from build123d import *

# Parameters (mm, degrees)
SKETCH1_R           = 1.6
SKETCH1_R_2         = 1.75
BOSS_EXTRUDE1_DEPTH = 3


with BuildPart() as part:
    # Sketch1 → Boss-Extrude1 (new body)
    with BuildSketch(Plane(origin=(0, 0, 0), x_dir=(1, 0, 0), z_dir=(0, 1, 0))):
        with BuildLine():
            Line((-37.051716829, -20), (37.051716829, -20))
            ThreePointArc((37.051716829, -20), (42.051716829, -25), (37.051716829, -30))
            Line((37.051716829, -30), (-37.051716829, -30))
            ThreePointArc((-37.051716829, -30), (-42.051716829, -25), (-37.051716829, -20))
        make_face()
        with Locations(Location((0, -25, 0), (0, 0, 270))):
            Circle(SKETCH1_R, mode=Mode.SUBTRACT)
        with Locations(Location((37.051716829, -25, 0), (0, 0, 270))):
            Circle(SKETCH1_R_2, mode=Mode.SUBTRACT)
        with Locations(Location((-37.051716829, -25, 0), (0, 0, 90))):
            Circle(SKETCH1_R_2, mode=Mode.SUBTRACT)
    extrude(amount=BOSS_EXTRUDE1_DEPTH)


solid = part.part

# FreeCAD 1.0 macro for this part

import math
import FreeCAD as App
import Part
import Sketcher

V = App.Vector

doc = App.newDocument("Part")
body = doc.addObject("PartDesign::Body", "Body")

# Sketch on XZ plane
sketch1 = doc.addObject("Sketcher::SketchObject", "Sketch")
body.addObject(sketch1)
sketch1.AttachmentSupport = (doc.XZ_Plane, [""])
sketch1.MapMode = "FlatFace"
sketch1.addGeometry([
    Part.LineSegment(V(37.1, 20, 0), V(-37.1, 20, 0)),  # 0
    Part.ArcOfCircle(Part.Circle(V(-37.1, 25, 0), V(0, 0, 1), 5), math.radians(90), math.radians(270)),  # 1
    Part.LineSegment(V(-37.1, 30, 0), V(37.1, 30, 0)),  # 2
    Part.ArcOfCircle(Part.Circle(V(37.1, 25, 0), V(0, 0, 1), 5), math.radians(-90), math.radians(90)),  # 3
    Part.Circle(V(37.1, 25, 0), V(0, 0, 1), 1.8),  # 4
    Part.Circle(V(0, 25, 0), V(0, 0, 1), 1.6),  # 5
    Part.Circle(V(-37.1, 25, 0), V(0, 0, 1), 1.8),  # 6
], False)
sketch1.addConstraint([
    Sketcher.Constraint("Tangent", 0, 2, 1, 2),
    Sketcher.Constraint("Tangent", 1, 1, 2, 1),
    Sketcher.Constraint("Tangent", 2, 2, 3, 2),
    Sketcher.Constraint("Tangent", 3, 1, 0, 1),
    Sketcher.Constraint("Horizontal", 0),
    Sketcher.Constraint("Horizontal", 2),
    Sketcher.Constraint("Coincident", 4, 3, 3, 3),
    Sketcher.Constraint("Coincident", 6, 3, 1, 3),
    Sketcher.Constraint("Equal", 4, 6),
    Sketcher.Constraint("PointOnObject", 5, 3, -2),
    Sketcher.Constraint("Horizontal", 4, 3, 5, 3),
    Sketcher.Constraint("Radius", 1, 5.0),
    Sketcher.Constraint("Diameter", 4, 3.5),
    Sketcher.Constraint("Diameter", 5, 3.2),
    Sketcher.Constraint("DistanceY", -1, 1, 1, 3, 25.0),
    Sketcher.Constraint("DistanceX", 0, 2, 0, 1, 74.103434),
    Sketcher.Constraint("DistanceX", 1, 3, -1, 1, 37.051717),
])
pad1 = doc.addObject("PartDesign::Pad", "Pad")
body.addObject(pad1)
pad1.Profile = sketch1
pad1.Length = 3
pad1.Reversed = True

doc.recompute()
